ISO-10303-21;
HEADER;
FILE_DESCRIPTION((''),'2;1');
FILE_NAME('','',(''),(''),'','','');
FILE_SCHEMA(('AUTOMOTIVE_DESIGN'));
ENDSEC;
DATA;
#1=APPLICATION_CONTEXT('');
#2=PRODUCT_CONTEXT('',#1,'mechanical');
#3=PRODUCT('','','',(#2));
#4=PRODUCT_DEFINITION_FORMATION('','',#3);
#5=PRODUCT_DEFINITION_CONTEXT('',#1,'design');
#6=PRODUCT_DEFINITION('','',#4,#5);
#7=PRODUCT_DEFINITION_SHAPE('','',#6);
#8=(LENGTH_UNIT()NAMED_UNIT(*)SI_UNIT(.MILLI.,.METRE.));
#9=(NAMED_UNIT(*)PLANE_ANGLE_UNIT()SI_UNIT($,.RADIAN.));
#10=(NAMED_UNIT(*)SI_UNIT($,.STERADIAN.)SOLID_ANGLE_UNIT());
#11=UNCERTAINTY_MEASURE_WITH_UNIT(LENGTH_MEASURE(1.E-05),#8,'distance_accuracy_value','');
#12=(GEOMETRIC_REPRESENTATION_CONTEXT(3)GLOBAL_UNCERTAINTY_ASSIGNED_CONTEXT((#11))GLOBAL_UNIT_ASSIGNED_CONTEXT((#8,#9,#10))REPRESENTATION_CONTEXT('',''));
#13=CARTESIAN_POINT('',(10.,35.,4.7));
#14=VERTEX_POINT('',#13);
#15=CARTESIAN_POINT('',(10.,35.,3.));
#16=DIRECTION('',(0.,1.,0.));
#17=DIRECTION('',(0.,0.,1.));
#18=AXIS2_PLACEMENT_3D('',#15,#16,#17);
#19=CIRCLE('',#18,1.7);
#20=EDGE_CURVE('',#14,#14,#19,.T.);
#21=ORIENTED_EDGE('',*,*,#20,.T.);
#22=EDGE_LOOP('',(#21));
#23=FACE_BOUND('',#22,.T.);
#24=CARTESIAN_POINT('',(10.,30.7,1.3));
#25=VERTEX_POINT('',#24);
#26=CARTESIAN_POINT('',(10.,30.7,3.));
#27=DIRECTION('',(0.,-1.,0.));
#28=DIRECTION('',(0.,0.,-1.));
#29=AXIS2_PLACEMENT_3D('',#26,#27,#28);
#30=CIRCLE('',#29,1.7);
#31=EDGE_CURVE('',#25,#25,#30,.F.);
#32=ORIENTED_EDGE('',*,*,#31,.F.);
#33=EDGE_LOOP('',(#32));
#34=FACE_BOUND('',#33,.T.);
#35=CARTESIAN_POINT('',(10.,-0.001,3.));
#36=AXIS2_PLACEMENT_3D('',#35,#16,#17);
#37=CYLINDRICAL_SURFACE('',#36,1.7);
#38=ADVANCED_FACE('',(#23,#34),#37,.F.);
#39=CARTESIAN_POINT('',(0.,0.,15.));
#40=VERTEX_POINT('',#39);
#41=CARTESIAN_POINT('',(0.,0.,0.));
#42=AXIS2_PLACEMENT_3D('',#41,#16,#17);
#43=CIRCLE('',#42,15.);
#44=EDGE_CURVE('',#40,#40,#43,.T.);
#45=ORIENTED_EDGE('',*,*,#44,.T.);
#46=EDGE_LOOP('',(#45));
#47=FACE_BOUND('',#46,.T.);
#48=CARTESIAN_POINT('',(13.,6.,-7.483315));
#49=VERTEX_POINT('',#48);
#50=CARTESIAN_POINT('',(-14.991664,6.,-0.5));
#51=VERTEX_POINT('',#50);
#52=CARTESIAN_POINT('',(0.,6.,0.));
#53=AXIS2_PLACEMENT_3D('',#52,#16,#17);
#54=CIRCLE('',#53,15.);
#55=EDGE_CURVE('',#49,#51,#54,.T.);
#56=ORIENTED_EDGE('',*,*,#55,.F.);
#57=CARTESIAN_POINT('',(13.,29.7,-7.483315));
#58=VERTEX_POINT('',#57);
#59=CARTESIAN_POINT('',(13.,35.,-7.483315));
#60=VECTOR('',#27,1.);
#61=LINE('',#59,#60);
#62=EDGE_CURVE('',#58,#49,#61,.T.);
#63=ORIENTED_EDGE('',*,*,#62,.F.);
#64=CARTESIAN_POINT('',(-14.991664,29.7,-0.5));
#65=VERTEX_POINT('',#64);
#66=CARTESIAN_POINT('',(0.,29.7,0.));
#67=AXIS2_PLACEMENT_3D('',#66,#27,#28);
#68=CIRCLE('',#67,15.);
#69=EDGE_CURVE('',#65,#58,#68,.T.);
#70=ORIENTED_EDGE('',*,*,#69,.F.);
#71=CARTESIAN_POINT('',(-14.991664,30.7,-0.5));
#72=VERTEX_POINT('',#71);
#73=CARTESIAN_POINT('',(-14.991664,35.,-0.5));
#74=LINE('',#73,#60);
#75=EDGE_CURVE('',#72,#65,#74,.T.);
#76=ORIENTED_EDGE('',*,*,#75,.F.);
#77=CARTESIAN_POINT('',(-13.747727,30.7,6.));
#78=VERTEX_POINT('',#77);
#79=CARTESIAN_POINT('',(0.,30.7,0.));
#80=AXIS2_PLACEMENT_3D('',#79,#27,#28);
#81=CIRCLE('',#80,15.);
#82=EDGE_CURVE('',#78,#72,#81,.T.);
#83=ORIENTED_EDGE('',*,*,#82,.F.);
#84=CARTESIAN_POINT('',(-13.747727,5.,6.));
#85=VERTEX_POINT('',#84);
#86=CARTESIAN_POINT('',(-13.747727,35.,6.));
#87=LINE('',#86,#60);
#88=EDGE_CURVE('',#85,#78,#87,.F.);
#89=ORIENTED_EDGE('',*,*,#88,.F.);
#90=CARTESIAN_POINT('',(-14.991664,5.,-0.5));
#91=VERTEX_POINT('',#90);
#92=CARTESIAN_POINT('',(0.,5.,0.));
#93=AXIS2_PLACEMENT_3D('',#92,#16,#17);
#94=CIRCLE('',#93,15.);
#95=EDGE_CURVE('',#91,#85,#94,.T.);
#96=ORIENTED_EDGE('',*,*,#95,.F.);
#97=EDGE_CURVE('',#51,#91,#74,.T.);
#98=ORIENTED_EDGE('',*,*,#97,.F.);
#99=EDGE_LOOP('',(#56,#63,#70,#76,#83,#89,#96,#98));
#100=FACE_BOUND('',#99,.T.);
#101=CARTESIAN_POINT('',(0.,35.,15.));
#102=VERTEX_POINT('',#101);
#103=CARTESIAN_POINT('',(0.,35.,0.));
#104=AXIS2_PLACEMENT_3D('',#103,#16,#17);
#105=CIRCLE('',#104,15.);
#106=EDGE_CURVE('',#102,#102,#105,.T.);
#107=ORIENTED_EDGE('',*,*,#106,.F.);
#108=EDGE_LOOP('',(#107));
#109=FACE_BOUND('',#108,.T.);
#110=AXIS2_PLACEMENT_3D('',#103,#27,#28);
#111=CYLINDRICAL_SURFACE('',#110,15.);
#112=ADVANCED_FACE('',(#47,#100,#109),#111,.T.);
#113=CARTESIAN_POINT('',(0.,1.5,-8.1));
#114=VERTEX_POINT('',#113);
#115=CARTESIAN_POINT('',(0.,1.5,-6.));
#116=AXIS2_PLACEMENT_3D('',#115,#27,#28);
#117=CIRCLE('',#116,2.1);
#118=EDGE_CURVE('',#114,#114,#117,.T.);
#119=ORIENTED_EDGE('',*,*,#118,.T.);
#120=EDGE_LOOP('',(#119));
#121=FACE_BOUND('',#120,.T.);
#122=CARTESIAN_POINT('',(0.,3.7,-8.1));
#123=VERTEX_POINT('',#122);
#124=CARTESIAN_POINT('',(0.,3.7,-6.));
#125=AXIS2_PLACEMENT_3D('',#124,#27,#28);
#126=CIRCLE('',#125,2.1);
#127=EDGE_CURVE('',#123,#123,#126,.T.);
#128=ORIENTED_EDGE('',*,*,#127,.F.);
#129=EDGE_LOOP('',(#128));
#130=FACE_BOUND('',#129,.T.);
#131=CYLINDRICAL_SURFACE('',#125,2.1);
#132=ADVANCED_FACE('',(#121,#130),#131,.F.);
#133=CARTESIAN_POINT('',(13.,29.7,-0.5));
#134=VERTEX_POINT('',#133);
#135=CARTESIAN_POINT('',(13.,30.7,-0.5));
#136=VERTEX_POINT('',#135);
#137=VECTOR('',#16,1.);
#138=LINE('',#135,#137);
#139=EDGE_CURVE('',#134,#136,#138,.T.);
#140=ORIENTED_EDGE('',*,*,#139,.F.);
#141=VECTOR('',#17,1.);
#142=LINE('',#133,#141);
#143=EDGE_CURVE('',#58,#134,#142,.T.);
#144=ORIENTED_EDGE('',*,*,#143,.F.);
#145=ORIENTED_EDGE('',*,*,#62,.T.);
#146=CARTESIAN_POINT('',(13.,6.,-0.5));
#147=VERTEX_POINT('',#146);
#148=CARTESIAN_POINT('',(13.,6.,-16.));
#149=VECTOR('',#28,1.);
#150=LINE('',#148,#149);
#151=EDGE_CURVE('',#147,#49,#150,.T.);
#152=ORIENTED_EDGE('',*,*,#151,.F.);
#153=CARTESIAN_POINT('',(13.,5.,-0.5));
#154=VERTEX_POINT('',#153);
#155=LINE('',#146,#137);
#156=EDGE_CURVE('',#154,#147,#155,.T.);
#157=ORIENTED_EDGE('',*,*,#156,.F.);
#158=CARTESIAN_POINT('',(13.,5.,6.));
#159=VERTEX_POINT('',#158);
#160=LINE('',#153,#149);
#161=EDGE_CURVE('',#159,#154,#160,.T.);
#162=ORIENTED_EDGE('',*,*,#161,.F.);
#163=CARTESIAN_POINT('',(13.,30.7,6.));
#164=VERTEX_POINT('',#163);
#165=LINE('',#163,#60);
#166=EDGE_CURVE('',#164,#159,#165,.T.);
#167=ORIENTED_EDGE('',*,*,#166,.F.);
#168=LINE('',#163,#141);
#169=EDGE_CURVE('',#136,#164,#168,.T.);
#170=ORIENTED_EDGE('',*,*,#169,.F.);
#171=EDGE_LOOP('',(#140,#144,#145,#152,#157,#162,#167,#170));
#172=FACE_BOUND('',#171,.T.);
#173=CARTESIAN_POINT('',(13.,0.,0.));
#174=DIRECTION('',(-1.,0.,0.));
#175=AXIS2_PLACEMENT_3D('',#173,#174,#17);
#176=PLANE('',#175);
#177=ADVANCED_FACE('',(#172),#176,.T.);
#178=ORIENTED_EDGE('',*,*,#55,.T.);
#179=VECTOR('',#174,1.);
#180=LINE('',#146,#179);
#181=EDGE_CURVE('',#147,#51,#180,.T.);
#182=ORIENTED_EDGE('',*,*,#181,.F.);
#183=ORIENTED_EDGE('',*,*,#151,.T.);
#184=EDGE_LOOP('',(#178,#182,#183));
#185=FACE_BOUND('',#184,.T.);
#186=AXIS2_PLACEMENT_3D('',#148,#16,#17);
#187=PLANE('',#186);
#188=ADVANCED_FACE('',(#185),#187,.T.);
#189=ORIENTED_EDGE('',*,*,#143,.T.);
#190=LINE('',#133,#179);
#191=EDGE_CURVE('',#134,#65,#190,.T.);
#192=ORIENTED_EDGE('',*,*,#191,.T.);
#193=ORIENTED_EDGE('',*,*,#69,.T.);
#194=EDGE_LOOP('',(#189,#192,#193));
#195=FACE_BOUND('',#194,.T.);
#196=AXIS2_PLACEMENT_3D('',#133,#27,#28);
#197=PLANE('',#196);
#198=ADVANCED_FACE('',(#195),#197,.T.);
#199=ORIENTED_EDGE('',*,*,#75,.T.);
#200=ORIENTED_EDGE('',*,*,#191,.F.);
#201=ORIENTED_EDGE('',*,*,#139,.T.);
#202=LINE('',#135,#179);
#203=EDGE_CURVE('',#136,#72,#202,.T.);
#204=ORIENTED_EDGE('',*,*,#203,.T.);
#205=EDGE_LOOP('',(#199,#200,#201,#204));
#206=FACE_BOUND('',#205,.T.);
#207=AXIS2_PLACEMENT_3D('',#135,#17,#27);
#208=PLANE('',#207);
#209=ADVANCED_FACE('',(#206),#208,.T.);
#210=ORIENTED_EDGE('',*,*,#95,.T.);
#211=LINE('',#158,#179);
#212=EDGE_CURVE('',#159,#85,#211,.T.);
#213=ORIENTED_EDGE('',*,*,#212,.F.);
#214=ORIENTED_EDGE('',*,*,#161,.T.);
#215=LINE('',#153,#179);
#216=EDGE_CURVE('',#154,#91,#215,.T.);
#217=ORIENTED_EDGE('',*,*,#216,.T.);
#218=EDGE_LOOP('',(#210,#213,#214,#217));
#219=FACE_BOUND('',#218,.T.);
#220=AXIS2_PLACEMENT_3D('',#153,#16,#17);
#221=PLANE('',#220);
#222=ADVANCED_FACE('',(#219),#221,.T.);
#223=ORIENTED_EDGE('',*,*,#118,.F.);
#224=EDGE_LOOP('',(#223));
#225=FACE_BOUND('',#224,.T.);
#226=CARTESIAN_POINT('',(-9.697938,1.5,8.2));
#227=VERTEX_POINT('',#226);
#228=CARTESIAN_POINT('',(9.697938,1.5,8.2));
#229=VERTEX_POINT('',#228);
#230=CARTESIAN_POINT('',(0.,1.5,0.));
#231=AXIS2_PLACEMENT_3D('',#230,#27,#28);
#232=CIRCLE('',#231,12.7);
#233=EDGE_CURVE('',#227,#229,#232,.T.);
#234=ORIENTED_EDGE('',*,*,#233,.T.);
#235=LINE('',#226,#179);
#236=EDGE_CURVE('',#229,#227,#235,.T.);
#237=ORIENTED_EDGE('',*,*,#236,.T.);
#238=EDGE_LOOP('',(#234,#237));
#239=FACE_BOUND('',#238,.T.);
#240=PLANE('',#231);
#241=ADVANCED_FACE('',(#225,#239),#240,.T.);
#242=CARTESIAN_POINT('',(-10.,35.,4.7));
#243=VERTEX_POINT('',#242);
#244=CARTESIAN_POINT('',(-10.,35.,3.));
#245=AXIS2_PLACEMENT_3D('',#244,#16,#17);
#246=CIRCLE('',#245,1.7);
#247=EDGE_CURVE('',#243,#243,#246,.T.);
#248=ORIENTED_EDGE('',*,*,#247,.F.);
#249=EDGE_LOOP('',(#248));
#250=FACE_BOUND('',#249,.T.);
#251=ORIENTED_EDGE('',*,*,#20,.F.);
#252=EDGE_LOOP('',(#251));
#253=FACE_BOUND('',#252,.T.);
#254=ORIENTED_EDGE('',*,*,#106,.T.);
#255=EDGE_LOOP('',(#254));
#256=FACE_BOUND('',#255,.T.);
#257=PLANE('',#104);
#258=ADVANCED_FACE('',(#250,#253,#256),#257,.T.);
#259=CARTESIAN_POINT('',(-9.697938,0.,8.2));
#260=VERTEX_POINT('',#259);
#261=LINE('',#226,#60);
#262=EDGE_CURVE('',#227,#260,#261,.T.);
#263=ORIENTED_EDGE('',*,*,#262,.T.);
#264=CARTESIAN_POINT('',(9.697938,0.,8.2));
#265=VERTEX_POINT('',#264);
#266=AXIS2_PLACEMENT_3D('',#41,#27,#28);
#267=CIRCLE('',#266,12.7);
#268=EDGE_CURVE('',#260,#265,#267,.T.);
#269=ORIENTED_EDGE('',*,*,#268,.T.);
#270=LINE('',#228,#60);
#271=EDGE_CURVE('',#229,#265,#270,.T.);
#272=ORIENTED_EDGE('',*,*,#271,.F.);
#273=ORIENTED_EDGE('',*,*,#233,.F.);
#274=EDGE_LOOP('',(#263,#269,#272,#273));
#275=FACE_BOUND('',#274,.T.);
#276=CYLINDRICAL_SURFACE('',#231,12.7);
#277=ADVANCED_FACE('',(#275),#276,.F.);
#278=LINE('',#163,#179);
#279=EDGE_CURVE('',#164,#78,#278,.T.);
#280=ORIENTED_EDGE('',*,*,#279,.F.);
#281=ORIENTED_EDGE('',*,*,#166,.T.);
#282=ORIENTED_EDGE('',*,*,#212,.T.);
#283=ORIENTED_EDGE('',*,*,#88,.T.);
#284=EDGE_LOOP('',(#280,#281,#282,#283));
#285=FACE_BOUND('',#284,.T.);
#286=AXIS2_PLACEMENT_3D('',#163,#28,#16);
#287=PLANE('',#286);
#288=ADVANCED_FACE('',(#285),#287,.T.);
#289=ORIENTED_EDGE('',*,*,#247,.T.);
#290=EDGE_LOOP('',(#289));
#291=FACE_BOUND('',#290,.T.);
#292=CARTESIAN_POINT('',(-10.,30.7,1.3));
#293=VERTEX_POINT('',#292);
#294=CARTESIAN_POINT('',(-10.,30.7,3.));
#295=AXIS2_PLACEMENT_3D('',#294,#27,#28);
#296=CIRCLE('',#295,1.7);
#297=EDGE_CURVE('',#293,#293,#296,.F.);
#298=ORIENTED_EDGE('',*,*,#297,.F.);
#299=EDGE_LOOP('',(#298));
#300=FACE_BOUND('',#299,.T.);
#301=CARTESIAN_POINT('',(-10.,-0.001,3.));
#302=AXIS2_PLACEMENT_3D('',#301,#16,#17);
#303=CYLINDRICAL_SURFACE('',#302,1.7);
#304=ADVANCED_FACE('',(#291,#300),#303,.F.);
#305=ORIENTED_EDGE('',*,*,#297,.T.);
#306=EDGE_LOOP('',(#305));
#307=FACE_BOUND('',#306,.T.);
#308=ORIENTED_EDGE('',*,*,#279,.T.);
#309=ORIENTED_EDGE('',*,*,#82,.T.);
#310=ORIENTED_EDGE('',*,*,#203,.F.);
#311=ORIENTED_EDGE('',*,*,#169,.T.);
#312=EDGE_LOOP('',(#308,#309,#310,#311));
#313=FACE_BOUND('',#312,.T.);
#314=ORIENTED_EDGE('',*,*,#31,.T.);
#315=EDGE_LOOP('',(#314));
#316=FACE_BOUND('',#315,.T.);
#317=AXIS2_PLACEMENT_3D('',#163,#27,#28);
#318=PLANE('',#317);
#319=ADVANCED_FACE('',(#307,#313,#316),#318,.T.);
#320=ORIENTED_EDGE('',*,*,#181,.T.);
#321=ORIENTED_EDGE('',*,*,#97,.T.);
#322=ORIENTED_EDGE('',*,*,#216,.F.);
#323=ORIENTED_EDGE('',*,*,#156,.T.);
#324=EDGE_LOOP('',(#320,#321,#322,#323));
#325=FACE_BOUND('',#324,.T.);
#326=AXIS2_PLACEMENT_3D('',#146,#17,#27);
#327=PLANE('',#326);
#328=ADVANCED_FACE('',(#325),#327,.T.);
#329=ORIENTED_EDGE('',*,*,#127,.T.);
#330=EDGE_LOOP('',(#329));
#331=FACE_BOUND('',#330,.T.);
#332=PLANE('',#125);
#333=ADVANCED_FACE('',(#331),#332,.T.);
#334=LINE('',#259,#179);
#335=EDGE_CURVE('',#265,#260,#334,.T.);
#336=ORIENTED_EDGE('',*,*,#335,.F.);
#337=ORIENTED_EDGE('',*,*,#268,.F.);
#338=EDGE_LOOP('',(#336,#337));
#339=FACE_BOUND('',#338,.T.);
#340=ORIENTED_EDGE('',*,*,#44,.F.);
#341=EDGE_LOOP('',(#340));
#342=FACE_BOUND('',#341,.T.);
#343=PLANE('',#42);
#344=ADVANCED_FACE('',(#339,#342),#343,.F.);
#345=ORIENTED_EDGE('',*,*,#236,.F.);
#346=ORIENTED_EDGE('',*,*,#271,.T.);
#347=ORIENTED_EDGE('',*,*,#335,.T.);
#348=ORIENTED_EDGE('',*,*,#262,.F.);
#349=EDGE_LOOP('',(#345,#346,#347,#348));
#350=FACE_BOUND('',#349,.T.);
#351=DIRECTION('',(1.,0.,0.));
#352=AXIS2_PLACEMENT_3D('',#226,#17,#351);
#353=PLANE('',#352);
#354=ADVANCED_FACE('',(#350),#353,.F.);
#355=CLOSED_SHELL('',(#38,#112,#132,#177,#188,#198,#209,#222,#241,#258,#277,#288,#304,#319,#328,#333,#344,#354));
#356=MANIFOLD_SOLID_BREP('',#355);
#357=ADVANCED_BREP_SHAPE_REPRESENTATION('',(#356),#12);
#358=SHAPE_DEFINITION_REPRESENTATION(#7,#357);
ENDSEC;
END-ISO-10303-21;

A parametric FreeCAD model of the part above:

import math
import FreeCAD as App
import Part
import Sketcher
from FreeCAD import Vector

doc = App.newDocument("Part")
body = doc.addObject("PartDesign::Body", "Body")

sketch1 = body.newObject("Sketcher::SketchObject", "Sketch")
sketch1.AttachmentSupport = (doc.getObject("XZ_Plane"), [""])
sketch1.MapMode = "FlatFace"
sketch1.addGeometry(Part.Circle(Vector(0, 0, 0), Vector(0, 0, 1), 15), False)
sketch1.addConstraint(Sketcher.Constraint("Coincident", 0, 3, -1, 1))
sketch1.addConstraint(Sketcher.Constraint("Diameter", 0, 30.0))
pad1 = body.newObject("PartDesign::Pad", "Pad")
pad1.Profile = sketch1
pad1.Length = 35
pad1.Reversed = True

sketch2 = body.newObject("Sketcher::SketchObject", "Sketch001")
sketch2.AttachmentSupport = (doc.getObject("YZ_Plane"), [""])
sketch2.MapMode = "FlatFace"
sketch2.addGeometry(Part.LineSegment(Vector(30.7, 6, 0), Vector(5, 6, 0)), False)
sketch2.addGeometry(Part.LineSegment(Vector(5, 6, 0), Vector(5, -0.5, 0)), False)
sketch2.addGeometry(Part.LineSegment(Vector(5, -0.5, 0), Vector(6, -0.5, 0)), False)
sketch2.addGeometry(Part.LineSegment(Vector(6, -0.5, 0), Vector(6, -16, 0)), False)
sketch2.addGeometry(Part.LineSegment(Vector(6, -16, 0), Vector(29.7, -16, 0)), False)
sketch2.addGeometry(Part.LineSegment(Vector(29.7, -16, 0), Vector(29.7, -0.5, 0)), False)
sketch2.addGeometry(Part.LineSegment(Vector(29.7, -0.5, 0), Vector(30.7, -0.5, 0)), False)
sketch2.addGeometry(Part.LineSegment(Vector(30.7, -0.5, 0), Vector(30.7, 6, 0)), False)
sketch2.addConstraint(Sketcher.Constraint("Coincident", 0, 2, 1, 1))
sketch2.addConstraint(Sketcher.Constraint("Coincident", 1, 2, 2, 1))
sketch2.addConstraint(Sketcher.Constraint("Coincident", 2, 2, 3, 1))
sketch2.addConstraint(Sketcher.Constraint("Coincident", 3, 2, 4, 1))
sketch2.addConstraint(Sketcher.Constraint("Coincident", 4, 2, 5, 1))
sketch2.addConstraint(Sketcher.Constraint("Coincident", 5, 2, 6, 1))
sketch2.addConstraint(Sketcher.Constraint("Coincident", 6, 2, 7, 1))
sketch2.addConstraint(Sketcher.Constraint("Coincident", 7, 2, 0, 1))
sketch2.addConstraint(Sketcher.Constraint("Horizontal", 0))
sketch2.addConstraint(Sketcher.Constraint("Vertical", 1))
sketch2.addConstraint(Sketcher.Constraint("Horizontal", 2))
sketch2.addConstraint(Sketcher.Constraint("Vertical", 3))
sketch2.addConstraint(Sketcher.Constraint("Horizontal", 4))
sketch2.addConstraint(Sketcher.Constraint("Vertical", 5))
sketch2.addConstraint(Sketcher.Constraint("Horizontal", 6))
sketch2.addConstraint(Sketcher.Constraint("Vertical", 7))
sketch2.addConstraint(Sketcher.Constraint("Horizontal", 2, 2, 5, 2))
sketch2.addConstraint(Sketcher.Constraint("Equal", 2, 6))
sketch2.addConstraint(Sketcher.Constraint("DistanceX", 2, 1, 2, 2, 1.0))
sketch2.addConstraint(Sketcher.Constraint("DistanceX", 0, 2, 0, 1, 25.7))
sketch2.addConstraint(Sketcher.Constraint("DistanceY", 1, 2, 1, 1, 6.5))
sketch2.addConstraint(Sketcher.Constraint("DistanceY", 3, 2, 3, 1, 15.5))
sketch2.addConstraint(Sketcher.Constraint("DistanceX", -1, 1, 0, 2, 5.0))
sketch2.addConstraint(Sketcher.Constraint("DistanceY", -1, 1, 0, 2, 6.0))
pocket1 = body.newObject("PartDesign::Pocket", "Pocket")
pocket1.Profile = sketch2
pocket1.Type = "TwoLengths"
pocket1.Length = 13
pocket1.Length2 = 16
pocket1.Reversed = True

sketch3 = body.newObject("Sketcher::SketchObject", "Sketch002")
sketch3.AttachmentSupport = (doc.getObject("XZ_Plane"), [""])
sketch3.MapMode = "FlatFace"
sketch3.addGeometry(Part.LineSegment(Vector(10, 8, 0), Vector(-10, 8, 0)), False)
sketch3.addGeometry(Part.ArcOfCircle(Part.Circle(Vector(0, 0, 0), Vector(0, 0, 1), 13), math.radians(140), math.radians(400)), False)
sketch3.addConstraint(Sketcher.Constraint("Coincident", 0, 1, 1, 2))
sketch3.addConstraint(Sketcher.Constraint("Coincident", 1, 1, 0, 2))
sketch3.addConstraint(Sketcher.Constraint("Horizontal", 0))
sketch3.addConstraint(Sketcher.Constraint("Coincident", 1, 3, -1, 1))
sketch3.addConstraint(Sketcher.Constraint("Radius", 1, 12.7))
sketch3.addConstraint(Sketcher.Constraint("DistanceY", -1, 1, 0, 1, 8.2))
pocket2 = body.newObject("PartDesign::Pocket", "Pocket001")
pocket2.Profile = sketch3
pocket2.Length = 1.5

sketch4 = body.newObject("Sketcher::SketchObject", "Sketch003")
sketch4.AttachmentSupport = (doc.getObject("XZ_Plane"), [""])
sketch4.MapMode = "FlatFace"
sketch4.AttachmentOffset = App.Placement(Vector(0, 0, -1.5), App.Rotation())
sketch4.addGeometry(Part.Circle(Vector(0, -6, 0), Vector(0, 0, 1), 2.1), False)
sketch4.addConstraint(Sketcher.Constraint("PointOnObject", 0, 3, -2))
sketch4.addConstraint(Sketcher.Constraint("Diameter", 0, 4.2))
sketch4.addConstraint(Sketcher.Constraint("DistanceY", 0, 3, -1, 1, 6.0))
pocket3 = body.newObject("PartDesign::Pocket", "Pocket002")
pocket3.Profile = sketch4
pocket3.Length = 2.2

sketch5 = body.newObject("Sketcher::SketchObject", "Sketch004")
sketch5.AttachmentSupport = (doc.getObject("XZ_Plane"), [""])
sketch5.MapMode = "FlatFace"
sketch5.AttachmentOffset = App.Placement(Vector(0, 0, -35), App.Rotation())
sketch5.addGeometry(Part.Circle(Vector(-10, 3, 0), Vector(0, 0, 1), 1.7), False)
sketch5.addConstraint(Sketcher.Constraint("Diameter", 0, 3.4))
sketch5.addConstraint(Sketcher.Constraint("DistanceX", 0, 3, -1, 1, 10.0))
sketch5.addConstraint(Sketcher.Constraint("DistanceY", -1, 1, 0, 3, 3.0))
pocket4 = body.newObject("PartDesign::Pocket", "Pocket003")
pocket4.Profile = sketch5
pocket4.Type = "UpToFirst"
pocket4.Reversed = True

sketch6 = body.newObject("Sketcher::SketchObject", "Sketch005")
sketch6.AttachmentSupport = (doc.getObject("XZ_Plane"), [""])
sketch6.MapMode = "FlatFace"
sketch6.AttachmentOffset = App.Placement(Vector(0, 0, -35), App.Rotation())
sketch6.addGeometry(Part.Circle(Vector(10, 3, 0), Vector(0, 0, 1), 1.7), False)
sketch6.addConstraint(Sketcher.Constraint("Diameter", 0, 3.4))
sketch6.addConstraint(Sketcher.Constraint("DistanceX", -1, 1, 0, 3, 10.0))
sketch6.addConstraint(Sketcher.Constraint("DistanceY", -1, 1, 0, 3, 3.0))
pocket5 = body.newObject("PartDesign::Pocket", "Pocket004")
pocket5.Profile = sketch6
pocket5.Type = "UpToFirst"
pocket5.Reversed = True

doc.recompute()
